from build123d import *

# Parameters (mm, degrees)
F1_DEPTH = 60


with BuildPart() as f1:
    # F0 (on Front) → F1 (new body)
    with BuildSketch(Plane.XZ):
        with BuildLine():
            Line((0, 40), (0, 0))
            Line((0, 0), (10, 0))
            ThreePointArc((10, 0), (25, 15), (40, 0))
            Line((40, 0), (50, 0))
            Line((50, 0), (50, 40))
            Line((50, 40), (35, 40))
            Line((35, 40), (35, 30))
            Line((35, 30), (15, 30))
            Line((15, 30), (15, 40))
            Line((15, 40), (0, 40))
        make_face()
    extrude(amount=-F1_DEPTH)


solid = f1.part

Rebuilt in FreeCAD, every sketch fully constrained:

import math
import FreeCAD as App
import Part
import Sketcher

V = App.Vector
Q = App.Units.Quantity

doc = App.newDocument("Part")
body = doc.addObject("PartDesign::Body", "Body")

# Sketch on XZ plane
sketch1 = doc.addObject("Sketcher::SketchObject", "Sketch")
body.addObject(sketch1)
sketch1.AttachmentSupport = (doc.XZ_Plane, [""])
sketch1.MapMode = "FlatFace"
sketch1.addGeometry([
    Part.LineSegment(V(0, 40, 0), V(0, 0, 0)),  # 0
    Part.LineSegment(V(0, 0, 0), V(10, 0, 0)),  # 1
    Part.ArcOfCircle(Part.Circle(V(25, 0, 0), V(0, 0, 1), 15), math.radians(0), math.radians(180)),  # 2
    Part.LineSegment(V(40, 0, 0), V(50, 0, 0)),  # 3
    Part.LineSegment(V(50, 0, 0), V(50, 40, 0)),  # 4
    Part.LineSegment(V(50, 40, 0), V(35, 40, 0)),  # 5
    Part.LineSegment(V(35, 40, 0), V(35, 30, 0)),  # 6
    Part.LineSegment(V(35, 30, 0), V(15, 30, 0)),  # 7
    Part.LineSegment(V(15, 30, 0), V(15, 40, 0)),  # 8
    Part.LineSegment(V(15, 40, 0), V(0, 40, 0)),  # 9
], False)
sketch1.addConstraint([
    Sketcher.Constraint("Coincident", 0, 2, 1, 1),
    Sketcher.Constraint("Coincident", 1, 2, 2, 2),
    Sketcher.Constraint("Coincident", 2, 1, 3, 1),
    Sketcher.Constraint("Coincident", 3, 2, 4, 1),
    Sketcher.Constraint("Coincident", 4, 2, 5, 1),
    Sketcher.Constraint("Coincident", 5, 2, 6, 1),
    Sketcher.Constraint("Coincident", 6, 2, 7, 1),
    Sketcher.Constraint("Coincident", 7, 2, 8, 1),
    Sketcher.Constraint("Coincident", 8, 2, 9, 1),
    Sketcher.Constraint("Coincident", 9, 2, 0, 1),
    Sketcher.Constraint("Vertical", 0),
    Sketcher.Constraint("Horizontal", 1),
    Sketcher.Constraint("Horizontal", 3),
    Sketcher.Constraint("Vertical", 4),
    Sketcher.Constraint("Horizontal", 5),
    Sketcher.Constraint("Vertical", 6),
    Sketcher.Constraint("Horizontal", 7),
    Sketcher.Constraint("Vertical", 8),
    Sketcher.Constraint("Horizontal", 9),
    Sketcher.Constraint("Coincident", 0, 2, -1, 1),
    Sketcher.Constraint("PointOnObject", 2, 3, -1),
    Sketcher.Constraint("PointOnObject", 2, 1, -1),
    Sketcher.Constraint("Horizontal", 5, 2, 8, 2),
    Sketcher.Constraint("Equal", 1, 3),
    Sketcher.Constraint("Equal", 5, 9),
    Sketcher.Constraint("Equal", 3, 6),
    Sketcher.Constraint("Radius", 2, Q("15 mm")),
    Sketcher.Constraint("DistanceX", 1, 1, 1, 2, Q("10 mm")),
    Sketcher.Constraint("DistanceX", 5, 2, 5, 1, Q("15 mm")),
    Sketcher.Constraint("DistanceY", 0, 2, 0, 1, Q("40 mm")),
])
pad1 = doc.addObject("PartDesign::Pad", "Pad")
body.addObject(pad1)
pad1.Profile = sketch1
pad1.Length = 60
pad1.Reversed = True

doc.recompute()
